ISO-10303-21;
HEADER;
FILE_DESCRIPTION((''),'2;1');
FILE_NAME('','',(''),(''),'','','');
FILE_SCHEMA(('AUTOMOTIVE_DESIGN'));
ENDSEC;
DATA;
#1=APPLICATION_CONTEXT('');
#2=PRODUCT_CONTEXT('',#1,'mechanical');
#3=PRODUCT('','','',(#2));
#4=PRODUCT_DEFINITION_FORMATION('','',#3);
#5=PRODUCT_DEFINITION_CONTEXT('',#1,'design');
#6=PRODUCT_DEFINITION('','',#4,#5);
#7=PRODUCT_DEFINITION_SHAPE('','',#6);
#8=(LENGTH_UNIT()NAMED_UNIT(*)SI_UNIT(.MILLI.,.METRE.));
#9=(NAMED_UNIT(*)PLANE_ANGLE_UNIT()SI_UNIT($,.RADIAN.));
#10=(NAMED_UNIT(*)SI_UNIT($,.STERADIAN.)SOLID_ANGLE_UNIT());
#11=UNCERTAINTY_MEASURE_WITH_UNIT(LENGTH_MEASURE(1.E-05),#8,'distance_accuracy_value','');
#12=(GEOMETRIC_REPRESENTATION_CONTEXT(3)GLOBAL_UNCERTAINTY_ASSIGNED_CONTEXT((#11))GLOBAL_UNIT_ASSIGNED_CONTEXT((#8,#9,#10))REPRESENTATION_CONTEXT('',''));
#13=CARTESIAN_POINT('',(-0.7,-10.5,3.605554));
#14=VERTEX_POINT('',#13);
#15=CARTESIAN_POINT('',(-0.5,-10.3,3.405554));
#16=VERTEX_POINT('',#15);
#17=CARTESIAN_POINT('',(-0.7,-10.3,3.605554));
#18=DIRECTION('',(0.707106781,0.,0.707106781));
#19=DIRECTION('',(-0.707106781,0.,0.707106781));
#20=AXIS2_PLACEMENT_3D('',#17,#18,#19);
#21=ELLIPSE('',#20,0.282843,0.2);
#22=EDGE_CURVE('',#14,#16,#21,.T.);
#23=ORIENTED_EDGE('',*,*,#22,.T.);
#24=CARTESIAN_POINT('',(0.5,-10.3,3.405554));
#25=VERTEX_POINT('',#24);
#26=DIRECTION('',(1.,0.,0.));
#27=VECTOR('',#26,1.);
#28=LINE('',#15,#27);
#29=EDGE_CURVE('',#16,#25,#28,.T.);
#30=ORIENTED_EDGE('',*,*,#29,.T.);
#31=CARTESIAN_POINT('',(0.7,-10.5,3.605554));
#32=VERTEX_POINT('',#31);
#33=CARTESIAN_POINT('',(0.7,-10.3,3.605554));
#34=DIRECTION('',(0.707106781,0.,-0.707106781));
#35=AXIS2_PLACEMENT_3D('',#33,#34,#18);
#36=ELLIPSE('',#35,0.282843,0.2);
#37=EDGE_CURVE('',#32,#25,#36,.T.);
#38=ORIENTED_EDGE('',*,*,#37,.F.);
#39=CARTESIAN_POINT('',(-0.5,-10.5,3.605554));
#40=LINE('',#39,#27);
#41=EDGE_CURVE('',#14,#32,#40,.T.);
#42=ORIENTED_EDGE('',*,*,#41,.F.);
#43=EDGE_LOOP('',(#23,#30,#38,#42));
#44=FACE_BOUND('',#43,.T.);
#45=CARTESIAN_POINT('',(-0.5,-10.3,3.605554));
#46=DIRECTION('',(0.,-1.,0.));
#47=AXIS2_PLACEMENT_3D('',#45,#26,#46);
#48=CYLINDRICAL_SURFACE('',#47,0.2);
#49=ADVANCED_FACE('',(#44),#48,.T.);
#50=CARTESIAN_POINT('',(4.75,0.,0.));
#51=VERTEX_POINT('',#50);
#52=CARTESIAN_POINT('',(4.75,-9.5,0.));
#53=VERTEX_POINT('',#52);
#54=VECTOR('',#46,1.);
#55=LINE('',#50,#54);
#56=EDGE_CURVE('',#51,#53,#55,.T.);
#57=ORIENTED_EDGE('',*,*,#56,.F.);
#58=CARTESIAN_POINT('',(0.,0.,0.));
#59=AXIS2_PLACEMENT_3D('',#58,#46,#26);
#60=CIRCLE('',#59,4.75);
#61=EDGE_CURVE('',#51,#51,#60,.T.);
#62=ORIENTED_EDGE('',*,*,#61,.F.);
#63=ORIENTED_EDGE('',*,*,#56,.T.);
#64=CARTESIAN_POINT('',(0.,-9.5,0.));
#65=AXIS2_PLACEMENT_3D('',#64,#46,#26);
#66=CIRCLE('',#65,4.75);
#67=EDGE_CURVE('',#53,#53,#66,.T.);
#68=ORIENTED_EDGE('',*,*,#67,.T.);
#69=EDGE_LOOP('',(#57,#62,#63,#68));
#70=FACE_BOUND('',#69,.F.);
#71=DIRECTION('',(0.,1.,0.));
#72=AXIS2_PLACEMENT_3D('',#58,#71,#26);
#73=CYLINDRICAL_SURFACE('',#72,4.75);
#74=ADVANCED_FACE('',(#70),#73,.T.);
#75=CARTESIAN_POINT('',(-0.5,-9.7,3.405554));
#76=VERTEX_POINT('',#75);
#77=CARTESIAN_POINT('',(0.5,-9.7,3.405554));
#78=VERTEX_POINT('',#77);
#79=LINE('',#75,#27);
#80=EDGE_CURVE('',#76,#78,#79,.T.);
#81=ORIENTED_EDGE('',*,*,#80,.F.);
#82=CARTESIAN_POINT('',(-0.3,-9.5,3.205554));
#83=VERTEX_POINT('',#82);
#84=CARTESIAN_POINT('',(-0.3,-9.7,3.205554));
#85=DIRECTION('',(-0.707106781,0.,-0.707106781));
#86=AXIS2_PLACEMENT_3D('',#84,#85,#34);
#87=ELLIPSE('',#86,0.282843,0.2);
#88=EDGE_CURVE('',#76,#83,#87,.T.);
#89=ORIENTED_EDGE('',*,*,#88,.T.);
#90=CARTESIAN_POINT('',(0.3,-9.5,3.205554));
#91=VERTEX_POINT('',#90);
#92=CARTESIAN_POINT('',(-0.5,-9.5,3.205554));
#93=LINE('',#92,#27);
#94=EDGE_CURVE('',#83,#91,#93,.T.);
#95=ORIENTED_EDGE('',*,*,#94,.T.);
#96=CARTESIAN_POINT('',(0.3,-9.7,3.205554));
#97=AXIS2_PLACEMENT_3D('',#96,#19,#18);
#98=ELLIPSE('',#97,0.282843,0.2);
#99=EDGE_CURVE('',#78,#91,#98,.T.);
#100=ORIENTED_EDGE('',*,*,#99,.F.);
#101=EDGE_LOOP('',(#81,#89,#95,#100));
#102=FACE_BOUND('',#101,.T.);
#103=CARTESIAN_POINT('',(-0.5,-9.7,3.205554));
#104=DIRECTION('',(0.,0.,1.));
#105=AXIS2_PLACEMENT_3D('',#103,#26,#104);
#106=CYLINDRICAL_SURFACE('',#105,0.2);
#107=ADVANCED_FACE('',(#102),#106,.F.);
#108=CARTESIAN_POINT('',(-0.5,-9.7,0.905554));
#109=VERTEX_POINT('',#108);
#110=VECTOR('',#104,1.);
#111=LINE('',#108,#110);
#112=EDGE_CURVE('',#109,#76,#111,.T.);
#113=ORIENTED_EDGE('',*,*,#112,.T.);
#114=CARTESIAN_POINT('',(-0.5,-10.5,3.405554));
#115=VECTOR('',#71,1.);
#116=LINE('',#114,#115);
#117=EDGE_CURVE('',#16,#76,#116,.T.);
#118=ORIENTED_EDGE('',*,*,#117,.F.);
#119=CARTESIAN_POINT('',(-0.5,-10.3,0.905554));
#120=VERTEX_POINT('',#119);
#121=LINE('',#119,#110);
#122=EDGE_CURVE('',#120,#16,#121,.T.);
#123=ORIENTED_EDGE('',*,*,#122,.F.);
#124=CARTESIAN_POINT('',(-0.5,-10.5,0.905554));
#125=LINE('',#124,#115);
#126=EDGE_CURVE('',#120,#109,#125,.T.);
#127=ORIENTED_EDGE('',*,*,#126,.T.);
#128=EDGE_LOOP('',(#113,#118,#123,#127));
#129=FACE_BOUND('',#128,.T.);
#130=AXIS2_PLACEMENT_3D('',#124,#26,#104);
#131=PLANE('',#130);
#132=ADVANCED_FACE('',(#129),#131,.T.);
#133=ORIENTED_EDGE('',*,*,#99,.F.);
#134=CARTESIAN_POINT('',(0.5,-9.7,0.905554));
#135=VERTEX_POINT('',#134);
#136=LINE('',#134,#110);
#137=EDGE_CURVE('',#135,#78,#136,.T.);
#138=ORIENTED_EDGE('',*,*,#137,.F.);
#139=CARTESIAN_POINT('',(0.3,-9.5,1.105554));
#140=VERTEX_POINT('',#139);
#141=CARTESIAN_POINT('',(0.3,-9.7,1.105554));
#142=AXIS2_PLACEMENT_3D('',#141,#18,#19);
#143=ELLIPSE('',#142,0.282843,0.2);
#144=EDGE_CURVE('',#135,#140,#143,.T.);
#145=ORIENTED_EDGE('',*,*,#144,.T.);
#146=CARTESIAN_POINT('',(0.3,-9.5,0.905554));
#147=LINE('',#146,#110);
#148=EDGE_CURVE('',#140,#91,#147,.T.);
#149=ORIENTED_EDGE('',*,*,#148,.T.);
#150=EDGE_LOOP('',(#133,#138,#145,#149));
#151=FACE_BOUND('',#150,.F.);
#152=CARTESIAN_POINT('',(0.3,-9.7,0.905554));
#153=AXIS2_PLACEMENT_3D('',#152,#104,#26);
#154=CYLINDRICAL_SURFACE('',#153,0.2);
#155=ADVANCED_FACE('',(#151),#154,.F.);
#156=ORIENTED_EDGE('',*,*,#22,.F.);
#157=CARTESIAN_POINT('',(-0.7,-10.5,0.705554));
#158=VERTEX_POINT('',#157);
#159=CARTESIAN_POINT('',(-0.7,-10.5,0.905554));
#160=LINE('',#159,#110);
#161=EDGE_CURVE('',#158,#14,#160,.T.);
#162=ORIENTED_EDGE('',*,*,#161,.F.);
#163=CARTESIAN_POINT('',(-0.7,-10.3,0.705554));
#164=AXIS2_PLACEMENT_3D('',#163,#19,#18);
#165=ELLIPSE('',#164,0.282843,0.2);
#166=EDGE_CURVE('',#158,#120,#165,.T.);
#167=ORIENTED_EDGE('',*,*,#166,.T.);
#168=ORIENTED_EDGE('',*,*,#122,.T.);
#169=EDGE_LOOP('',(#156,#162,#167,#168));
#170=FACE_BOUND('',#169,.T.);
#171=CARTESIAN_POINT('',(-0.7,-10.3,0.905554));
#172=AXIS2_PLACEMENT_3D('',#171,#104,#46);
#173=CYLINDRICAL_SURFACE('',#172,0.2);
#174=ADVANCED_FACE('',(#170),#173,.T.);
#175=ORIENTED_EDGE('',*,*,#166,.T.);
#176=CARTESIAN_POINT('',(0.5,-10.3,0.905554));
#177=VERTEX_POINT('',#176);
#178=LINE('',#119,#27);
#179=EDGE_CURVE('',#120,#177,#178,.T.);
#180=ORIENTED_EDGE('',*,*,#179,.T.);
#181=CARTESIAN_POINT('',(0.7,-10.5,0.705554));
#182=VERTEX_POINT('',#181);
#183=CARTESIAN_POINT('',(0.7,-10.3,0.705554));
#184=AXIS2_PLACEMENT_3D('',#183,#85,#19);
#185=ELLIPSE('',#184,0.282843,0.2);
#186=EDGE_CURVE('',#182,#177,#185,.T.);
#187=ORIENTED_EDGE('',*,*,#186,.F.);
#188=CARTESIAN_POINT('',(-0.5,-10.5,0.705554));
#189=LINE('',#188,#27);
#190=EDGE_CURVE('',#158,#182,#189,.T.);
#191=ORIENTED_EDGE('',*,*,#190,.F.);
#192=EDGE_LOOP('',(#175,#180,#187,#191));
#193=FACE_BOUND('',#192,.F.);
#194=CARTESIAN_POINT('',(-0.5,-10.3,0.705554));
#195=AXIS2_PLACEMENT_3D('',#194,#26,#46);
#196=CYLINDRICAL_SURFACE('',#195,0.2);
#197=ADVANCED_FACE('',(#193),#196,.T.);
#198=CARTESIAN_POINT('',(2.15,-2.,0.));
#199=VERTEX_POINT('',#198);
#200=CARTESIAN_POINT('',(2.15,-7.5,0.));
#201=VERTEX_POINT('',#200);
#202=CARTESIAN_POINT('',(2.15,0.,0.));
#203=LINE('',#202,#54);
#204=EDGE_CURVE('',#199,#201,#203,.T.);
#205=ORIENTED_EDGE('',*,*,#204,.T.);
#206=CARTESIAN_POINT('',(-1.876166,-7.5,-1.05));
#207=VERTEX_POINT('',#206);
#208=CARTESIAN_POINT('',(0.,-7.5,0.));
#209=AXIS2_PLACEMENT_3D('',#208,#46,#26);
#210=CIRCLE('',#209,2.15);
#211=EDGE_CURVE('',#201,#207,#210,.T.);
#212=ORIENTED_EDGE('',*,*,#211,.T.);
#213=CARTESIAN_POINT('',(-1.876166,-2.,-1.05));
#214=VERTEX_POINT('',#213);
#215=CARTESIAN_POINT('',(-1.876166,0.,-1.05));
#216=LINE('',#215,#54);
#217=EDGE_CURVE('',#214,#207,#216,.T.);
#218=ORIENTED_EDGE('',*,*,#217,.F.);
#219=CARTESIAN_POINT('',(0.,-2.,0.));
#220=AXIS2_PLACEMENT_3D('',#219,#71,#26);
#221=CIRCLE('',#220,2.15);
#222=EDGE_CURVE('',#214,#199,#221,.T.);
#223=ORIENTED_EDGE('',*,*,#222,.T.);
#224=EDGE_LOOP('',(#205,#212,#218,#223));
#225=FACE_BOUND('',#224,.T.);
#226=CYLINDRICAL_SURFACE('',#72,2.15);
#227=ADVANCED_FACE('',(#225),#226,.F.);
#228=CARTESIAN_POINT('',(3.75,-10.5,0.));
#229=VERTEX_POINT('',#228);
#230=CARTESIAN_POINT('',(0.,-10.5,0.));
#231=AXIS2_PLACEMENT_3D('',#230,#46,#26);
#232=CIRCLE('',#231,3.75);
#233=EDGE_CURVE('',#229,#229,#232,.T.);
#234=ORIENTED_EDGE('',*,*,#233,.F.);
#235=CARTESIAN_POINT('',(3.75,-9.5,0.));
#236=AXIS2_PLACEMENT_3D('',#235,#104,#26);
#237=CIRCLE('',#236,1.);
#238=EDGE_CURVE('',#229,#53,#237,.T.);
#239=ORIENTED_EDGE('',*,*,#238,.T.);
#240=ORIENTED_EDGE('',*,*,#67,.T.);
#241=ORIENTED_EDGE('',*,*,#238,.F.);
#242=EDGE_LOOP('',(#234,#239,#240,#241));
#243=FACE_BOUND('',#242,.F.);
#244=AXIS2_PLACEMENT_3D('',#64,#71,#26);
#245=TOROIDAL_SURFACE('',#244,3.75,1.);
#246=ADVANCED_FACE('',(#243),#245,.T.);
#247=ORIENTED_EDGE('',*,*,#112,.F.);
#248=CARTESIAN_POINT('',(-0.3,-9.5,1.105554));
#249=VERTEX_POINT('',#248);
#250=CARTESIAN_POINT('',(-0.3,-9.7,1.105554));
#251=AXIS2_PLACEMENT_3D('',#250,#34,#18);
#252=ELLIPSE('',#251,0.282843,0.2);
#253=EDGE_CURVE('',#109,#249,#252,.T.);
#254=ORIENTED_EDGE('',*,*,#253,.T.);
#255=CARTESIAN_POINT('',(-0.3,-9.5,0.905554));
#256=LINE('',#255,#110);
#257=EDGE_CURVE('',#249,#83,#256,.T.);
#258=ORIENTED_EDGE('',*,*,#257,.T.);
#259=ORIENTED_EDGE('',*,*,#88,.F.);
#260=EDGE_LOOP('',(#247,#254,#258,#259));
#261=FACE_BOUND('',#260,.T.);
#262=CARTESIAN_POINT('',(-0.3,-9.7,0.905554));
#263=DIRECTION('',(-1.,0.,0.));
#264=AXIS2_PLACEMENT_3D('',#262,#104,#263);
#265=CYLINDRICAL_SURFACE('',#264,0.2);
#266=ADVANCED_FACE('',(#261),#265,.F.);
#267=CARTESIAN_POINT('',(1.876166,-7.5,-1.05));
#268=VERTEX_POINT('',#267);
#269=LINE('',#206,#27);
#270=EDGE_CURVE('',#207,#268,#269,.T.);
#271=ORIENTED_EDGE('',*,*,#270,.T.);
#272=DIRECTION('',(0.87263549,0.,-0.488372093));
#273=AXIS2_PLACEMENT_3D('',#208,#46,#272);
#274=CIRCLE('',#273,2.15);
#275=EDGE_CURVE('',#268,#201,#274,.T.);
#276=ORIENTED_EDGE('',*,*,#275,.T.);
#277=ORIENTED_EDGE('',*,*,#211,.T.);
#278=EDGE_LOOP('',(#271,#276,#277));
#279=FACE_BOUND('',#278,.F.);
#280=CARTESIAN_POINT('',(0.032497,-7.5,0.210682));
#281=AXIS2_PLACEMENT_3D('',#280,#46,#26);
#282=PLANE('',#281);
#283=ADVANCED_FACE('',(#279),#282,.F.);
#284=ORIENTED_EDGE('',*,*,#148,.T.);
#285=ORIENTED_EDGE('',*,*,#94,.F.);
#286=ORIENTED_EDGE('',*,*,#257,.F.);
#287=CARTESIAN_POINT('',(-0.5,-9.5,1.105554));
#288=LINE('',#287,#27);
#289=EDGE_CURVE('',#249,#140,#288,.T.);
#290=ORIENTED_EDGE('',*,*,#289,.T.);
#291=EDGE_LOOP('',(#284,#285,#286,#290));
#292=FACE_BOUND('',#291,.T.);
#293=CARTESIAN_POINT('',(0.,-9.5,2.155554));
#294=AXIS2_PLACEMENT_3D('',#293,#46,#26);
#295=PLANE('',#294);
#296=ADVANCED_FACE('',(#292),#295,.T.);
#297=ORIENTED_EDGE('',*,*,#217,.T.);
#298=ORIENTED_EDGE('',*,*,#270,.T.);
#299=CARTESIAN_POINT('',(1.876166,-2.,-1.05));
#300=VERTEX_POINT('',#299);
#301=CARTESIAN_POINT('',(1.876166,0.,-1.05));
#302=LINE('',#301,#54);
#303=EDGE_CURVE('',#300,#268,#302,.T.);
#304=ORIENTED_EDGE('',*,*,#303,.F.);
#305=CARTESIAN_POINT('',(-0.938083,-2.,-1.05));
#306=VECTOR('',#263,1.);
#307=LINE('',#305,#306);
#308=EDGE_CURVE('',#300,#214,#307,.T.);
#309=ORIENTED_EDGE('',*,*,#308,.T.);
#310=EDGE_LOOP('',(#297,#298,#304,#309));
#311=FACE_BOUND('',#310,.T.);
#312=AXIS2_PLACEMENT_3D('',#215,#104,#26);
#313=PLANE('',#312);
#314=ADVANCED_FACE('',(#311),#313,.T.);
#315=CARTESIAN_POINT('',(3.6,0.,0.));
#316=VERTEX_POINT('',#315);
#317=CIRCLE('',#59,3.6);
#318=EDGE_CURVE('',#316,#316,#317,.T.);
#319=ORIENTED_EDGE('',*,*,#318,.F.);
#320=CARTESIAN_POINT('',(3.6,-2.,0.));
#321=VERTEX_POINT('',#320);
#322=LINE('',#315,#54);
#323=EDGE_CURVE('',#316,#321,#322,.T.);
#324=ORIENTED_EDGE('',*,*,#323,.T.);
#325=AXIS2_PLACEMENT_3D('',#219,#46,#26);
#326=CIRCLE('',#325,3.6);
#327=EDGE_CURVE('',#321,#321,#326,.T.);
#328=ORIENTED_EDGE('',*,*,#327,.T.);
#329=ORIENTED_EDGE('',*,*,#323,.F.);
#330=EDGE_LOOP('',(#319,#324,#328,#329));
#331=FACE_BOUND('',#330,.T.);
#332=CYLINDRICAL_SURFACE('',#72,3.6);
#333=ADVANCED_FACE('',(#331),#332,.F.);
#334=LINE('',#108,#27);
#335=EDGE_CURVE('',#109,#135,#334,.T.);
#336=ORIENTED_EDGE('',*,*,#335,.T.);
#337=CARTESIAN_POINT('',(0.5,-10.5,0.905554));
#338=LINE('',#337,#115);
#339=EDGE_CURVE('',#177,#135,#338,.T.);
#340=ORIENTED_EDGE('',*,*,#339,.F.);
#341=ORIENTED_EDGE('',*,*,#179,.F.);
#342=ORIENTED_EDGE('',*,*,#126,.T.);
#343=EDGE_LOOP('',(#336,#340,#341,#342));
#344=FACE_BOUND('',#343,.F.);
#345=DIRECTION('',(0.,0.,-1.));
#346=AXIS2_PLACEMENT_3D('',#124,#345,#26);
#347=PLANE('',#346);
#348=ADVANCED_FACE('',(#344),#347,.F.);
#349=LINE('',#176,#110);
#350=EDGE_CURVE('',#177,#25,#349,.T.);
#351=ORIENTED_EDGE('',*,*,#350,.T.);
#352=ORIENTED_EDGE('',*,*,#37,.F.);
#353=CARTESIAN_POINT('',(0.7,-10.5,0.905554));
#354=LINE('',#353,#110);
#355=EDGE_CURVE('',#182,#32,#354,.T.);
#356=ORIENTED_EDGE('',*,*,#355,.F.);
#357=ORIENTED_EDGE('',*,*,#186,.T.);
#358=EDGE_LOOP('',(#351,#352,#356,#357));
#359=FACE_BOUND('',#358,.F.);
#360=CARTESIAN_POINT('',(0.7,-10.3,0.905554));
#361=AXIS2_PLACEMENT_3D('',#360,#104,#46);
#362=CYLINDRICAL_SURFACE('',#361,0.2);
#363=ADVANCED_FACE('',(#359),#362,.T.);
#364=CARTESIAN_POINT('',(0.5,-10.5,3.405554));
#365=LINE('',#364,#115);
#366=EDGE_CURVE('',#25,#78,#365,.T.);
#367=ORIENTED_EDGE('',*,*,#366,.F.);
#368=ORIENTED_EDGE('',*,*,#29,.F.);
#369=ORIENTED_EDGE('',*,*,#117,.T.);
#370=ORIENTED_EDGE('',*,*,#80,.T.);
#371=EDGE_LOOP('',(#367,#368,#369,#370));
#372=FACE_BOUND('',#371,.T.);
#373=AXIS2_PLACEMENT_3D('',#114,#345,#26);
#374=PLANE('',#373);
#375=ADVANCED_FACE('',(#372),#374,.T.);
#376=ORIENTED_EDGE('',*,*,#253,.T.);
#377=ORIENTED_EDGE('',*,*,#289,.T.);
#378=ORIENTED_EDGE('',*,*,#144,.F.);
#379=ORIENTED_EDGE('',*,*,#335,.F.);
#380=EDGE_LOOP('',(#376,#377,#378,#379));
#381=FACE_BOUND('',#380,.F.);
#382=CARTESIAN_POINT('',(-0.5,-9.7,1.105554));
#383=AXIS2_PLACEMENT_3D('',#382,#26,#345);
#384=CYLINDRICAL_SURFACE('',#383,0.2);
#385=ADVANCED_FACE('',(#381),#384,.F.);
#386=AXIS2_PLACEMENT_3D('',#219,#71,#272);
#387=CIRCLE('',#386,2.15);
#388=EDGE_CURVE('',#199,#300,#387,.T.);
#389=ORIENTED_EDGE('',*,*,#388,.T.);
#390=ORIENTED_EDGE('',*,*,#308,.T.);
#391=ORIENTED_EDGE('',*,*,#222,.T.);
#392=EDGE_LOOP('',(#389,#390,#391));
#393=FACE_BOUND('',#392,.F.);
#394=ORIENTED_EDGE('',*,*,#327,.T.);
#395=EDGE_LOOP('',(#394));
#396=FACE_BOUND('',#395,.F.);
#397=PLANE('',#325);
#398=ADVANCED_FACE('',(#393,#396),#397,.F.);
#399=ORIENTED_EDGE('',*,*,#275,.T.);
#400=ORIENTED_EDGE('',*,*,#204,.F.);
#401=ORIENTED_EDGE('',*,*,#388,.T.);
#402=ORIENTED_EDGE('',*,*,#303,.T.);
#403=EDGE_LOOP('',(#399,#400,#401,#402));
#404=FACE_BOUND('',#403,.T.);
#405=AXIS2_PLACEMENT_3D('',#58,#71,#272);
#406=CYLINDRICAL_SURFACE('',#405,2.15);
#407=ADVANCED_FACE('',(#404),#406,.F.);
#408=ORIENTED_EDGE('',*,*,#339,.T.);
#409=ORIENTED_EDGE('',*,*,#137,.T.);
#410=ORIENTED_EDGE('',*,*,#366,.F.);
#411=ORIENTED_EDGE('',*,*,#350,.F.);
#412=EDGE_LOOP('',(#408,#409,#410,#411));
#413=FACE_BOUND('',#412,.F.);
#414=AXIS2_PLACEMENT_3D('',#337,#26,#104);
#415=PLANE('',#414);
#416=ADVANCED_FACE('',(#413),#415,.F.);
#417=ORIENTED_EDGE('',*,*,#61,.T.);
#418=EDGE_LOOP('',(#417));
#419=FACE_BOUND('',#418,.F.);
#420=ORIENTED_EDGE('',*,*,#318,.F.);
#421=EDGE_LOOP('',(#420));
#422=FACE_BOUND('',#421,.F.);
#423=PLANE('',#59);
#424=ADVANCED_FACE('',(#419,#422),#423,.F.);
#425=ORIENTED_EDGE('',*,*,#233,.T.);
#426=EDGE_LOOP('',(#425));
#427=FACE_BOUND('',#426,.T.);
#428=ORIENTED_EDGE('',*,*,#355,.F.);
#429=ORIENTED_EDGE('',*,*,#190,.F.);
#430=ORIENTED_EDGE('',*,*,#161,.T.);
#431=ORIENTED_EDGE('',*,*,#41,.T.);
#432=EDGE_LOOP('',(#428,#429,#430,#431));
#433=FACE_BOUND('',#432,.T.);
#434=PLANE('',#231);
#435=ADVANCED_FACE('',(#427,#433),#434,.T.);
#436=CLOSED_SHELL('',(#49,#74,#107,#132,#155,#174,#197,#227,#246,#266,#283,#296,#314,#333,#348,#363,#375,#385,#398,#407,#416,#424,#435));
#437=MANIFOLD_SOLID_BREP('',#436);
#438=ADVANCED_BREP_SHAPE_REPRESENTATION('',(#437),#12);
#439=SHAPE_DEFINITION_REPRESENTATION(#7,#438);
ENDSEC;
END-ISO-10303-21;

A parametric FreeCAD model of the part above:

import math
import FreeCAD as App
import Part
import Sketcher

V = App.Vector


def edges_at(feature, points):
    """Names of the edges that pass closest to the given points."""
    edges = feature.Shape.Edges
    near = lambda p: min(range(len(edges)), key=lambda i: edges[i].distToShape(Part.Vertex(*p))[0])
    return sorted({f"Edge{near(p) + 1}" for p in points})

doc = App.newDocument("Part")
body = doc.addObject("PartDesign::Body", "Body")

# Sketch on XZ plane
sketch1 = body.newObject("Sketcher::SketchObject", "Sketch")
sketch1.AttachmentSupport = (doc.getObject("XZ_Plane"), [""])
sketch1.MapMode = "FlatFace"
sketch1.addGeometry(Part.Circle(V(0, 0, 0), V(0, 0, 1), 4.8), False)
sketch1.addConstraint([
    Sketcher.Constraint("Coincident", 0, 3, -1, 1),
    Sketcher.Constraint("Diameter", 0, 9.5),
])
pad1 = body.newObject("PartDesign::Pad", "Pad")
pad1.Profile = sketch1
pad1.Length = 10.5

# Sketch on XZ plane
sketch2 = body.newObject("Sketcher::SketchObject", "Sketch001")
sketch2.AttachmentSupport = (doc.getObject("XZ_Plane"), [""])
sketch2.MapMode = "FlatFace"
sketch2.addGeometry(Part.Circle(V(0, 0, 0), V(0, 0, 1), 3.6), False)
sketch2.addConstraint([
    Sketcher.Constraint("Coincident", 0, 3, -1, 1),
    Sketcher.Constraint("Diameter", 0, 7.2),
])
pocket1 = body.newObject("PartDesign::Pocket", "Pocket")
pocket1.Profile = sketch2
pocket1.Length = 2
pocket1.Reversed = True

# Sketch on XZ plane
sketch3 = body.newObject("Sketcher::SketchObject", "Sketch002")
sketch3.AttachmentSupport = (doc.getObject("XZ_Plane"), [""])
sketch3.MapMode = "FlatFace"
sketch3.addGeometry([
    Part.ArcOfCircle(Part.Circle(V(0, 0, 0), V(0, 0, 1), 2.1), math.radians(-29), math.radians(0)),
    Part.ArcOfCircle(Part.Circle(V(0, 0, 0), V(0, 0, 1), 2.1), math.radians(0), math.radians(209)),
    Part.LineSegment(V(-1.9, -1.1, 0), V(1.9, -1.1, 0)),
], False)
sketch3.addConstraint([
    Sketcher.Constraint("Tangent", 0, 2, 1, 1),
    Sketcher.Constraint("Coincident", 1, 2, 2, 1),
    Sketcher.Constraint("Coincident", 2, 2, 0, 1),
    Sketcher.Constraint("Horizontal", 2),
    Sketcher.Constraint("Coincident", 0, 3, -1, 1),
    Sketcher.Constraint("Equal", 0, 1),
    Sketcher.Constraint("PointOnObject", 0, 2, -1),
    Sketcher.Constraint("Radius", 0, 2.15),
    Sketcher.Constraint("DistanceY", 1, 2, -1, 1, 1.05),
])
pocket2 = body.newObject("PartDesign::Pocket", "Pocket001")
pocket2.Profile = sketch3
pocket2.Length = 7.5
pocket2.Reversed = True

# Sketch on XZ plane
sketch4 = body.newObject("Sketcher::SketchObject", "Sketch003")
sketch4.AttachmentSupport = (doc.getObject("XZ_Plane"), [""])
sketch4.MapMode = "FlatFace"
sketch4.AttachmentOffset = App.Placement(V(0, 0, 10.5), App.Rotation())
sketch4.addGeometry([
    Part.LineSegment(V(-0.5, 3.4, 0), V(-0.5, 0.9, 0)),
    Part.LineSegment(V(-0.5, 0.9, 0), V(0.5, 0.9, 0)),
    Part.LineSegment(V(0.5, 0.9, 0), V(0.5, 3.4, 0)),
    Part.LineSegment(V(0.5, 3.4, 0), V(-0.5, 3.4, 0)),
], False)
sketch4.addConstraint([
    Sketcher.Constraint("Coincident", 0, 2, 1, 1),
    Sketcher.Constraint("Coincident", 1, 2, 2, 1),
    Sketcher.Constraint("Coincident", 2, 2, 3, 1),
    Sketcher.Constraint("Coincident", 3, 2, 0, 1),
    Sketcher.Constraint("Vertical", 0),
    Sketcher.Constraint("Horizontal", 1),
    Sketcher.Constraint("Vertical", 2),
    Sketcher.Constraint("Horizontal", 3),
    Sketcher.Constraint("DistanceX", 1, 1, 1, 2, 1.0),
    Sketcher.Constraint("DistanceY", 0, 2, 0, 1, 2.5),
    Sketcher.Constraint("DistanceX", 0, 2, -1, 1, 0.5),
    Sketcher.Constraint("DistanceY", -1, 1, 0, 2, 0.905554),
])
pocket3 = body.newObject("PartDesign::Pocket", "Pocket002")
pocket3.Profile = sketch4
pocket3.Length = 1
doc.recompute()

fillet = body.newObject("PartDesign::Fillet", "Fillet")
fillet.Base = (pocket3, edges_at(pocket3, [
    (-0.5, -10.5, 2.156),
    (0, -10.5, 3.406),
    (0.5, -10.5, 2.156),
    (0, -10.5, 0.906),
    (0, -9.5, 3.406),
    (0.5, -9.5, 2.156),
    (-0.5, -9.5, 2.156),
    (0, -9.5, 0.906),
]))
fillet.Radius = 0.2
doc.recompute()

fillet2 = body.newObject("PartDesign::Fillet", "Fillet001")
fillet2.Base = (fillet, edges_at(fillet, [(-4.75, -10.5, 0)]))
fillet2.Radius = 1

doc.recompute()
